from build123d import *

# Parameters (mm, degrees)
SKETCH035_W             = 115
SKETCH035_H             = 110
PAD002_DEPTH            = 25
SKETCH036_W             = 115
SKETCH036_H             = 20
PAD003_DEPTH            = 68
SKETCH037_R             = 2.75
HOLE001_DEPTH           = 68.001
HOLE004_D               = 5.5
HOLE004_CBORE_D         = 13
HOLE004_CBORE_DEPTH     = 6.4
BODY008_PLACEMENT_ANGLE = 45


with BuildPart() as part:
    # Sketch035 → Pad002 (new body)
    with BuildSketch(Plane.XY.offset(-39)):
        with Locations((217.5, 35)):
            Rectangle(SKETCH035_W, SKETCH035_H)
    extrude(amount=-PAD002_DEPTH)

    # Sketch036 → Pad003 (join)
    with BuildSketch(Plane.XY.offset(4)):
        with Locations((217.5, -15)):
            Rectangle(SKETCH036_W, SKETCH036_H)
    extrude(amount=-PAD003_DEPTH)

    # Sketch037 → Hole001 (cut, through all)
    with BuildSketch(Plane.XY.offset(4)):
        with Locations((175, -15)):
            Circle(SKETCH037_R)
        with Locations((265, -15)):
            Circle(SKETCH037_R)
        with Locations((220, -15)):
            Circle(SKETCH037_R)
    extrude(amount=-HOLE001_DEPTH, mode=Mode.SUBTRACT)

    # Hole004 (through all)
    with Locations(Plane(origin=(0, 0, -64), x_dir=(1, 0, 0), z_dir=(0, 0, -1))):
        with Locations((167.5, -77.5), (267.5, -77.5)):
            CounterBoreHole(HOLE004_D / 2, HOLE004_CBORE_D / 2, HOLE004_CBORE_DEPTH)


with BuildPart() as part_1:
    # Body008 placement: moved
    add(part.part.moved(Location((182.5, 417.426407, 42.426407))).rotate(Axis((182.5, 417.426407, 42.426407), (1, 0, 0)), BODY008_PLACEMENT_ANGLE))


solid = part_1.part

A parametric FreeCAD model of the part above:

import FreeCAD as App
import Part
import Sketcher
Q = App.Units.Quantity

doc = App.newDocument("Part")
body = doc.addObject("PartDesign::Body", "Body")

# Sketch on XY plane
sketch1 = body.newObject("Sketcher::SketchObject", "Sketch")
sketch1.AttachmentSupport = (doc.getObject("XY_Plane"), [""])
sketch1.MapMode = "FlatFace"
sketch1.AttachmentOffset = App.Placement(App.Vector(0, 0, -39), App.Rotation())
sketch1.addGeometry(Part.LineSegment(App.Vector(160, 90, 0), App.Vector(160, -20, 0)), False)
sketch1.addGeometry(Part.LineSegment(App.Vector(160, -20, 0), App.Vector(275, -20, 0)), False)
sketch1.addGeometry(Part.LineSegment(App.Vector(275, -20, 0), App.Vector(275, 90, 0)), False)
sketch1.addGeometry(Part.LineSegment(App.Vector(275, 90, 0), App.Vector(160, 90, 0)), False)
sketch1.addConstraint(Sketcher.Constraint("Coincident", 0, 2, 1, 1))
sketch1.addConstraint(Sketcher.Constraint("Coincident", 1, 2, 2, 1))
sketch1.addConstraint(Sketcher.Constraint("Coincident", 2, 2, 3, 1))
sketch1.addConstraint(Sketcher.Constraint("Coincident", 3, 2, 0, 1))
sketch1.addConstraint(Sketcher.Constraint("Vertical", 0))
sketch1.addConstraint(Sketcher.Constraint("Horizontal", 1))
sketch1.addConstraint(Sketcher.Constraint("Vertical", 2))
sketch1.addConstraint(Sketcher.Constraint("Horizontal", 3))
sketch1.addConstraint(Sketcher.Constraint("DistanceX", 1, 1, 1, 2, Q("115 mm")))
sketch1.addConstraint(Sketcher.Constraint("DistanceY", 0, 2, 0, 1, Q("110 mm")))
sketch1.addConstraint(Sketcher.Constraint("DistanceX", -1, 1, 0, 2, Q("160 mm")))
sketch1.addConstraint(Sketcher.Constraint("DistanceY", 0, 2, -1, 1, Q("20 mm")))
pad1 = body.newObject("PartDesign::Pad", "Pad")
pad1.Profile = sketch1
pad1.Length = 25
pad1.Reversed = True

# Sketch on XY plane
sketch2 = body.newObject("Sketcher::SketchObject", "Sketch001")
sketch2.AttachmentSupport = (doc.getObject("XY_Plane"), [""])
sketch2.MapMode = "FlatFace"
sketch2.AttachmentOffset = App.Placement(App.Vector(0, 0, 4), App.Rotation())
sketch2.addGeometry(Part.LineSegment(App.Vector(160, -5, 0), App.Vector(160, -25, 0)), False)
sketch2.addGeometry(Part.LineSegment(App.Vector(160, -25, 0), App.Vector(275, -25, 0)), False)
sketch2.addGeometry(Part.LineSegment(App.Vector(275, -25, 0), App.Vector(275, -5, 0)), False)
sketch2.addGeometry(Part.LineSegment(App.Vector(275, -5, 0), App.Vector(160, -5, 0)), False)
sketch2.addConstraint(Sketcher.Constraint("Coincident", 0, 2, 1, 1))
sketch2.addConstraint(Sketcher.Constraint("Coincident", 1, 2, 2, 1))
sketch2.addConstraint(Sketcher.Constraint("Coincident", 2, 2, 3, 1))
sketch2.addConstraint(Sketcher.Constraint("Coincident", 3, 2, 0, 1))
sketch2.addConstraint(Sketcher.Constraint("Vertical", 0))
sketch2.addConstraint(Sketcher.Constraint("Horizontal", 1))
sketch2.addConstraint(Sketcher.Constraint("Vertical", 2))
sketch2.addConstraint(Sketcher.Constraint("Horizontal", 3))
sketch2.addConstraint(Sketcher.Constraint("DistanceX", 1, 1, 1, 2, Q("115 mm")))
sketch2.addConstraint(Sketcher.Constraint("DistanceY", 0, 2, 0, 1, Q("20 mm")))
sketch2.addConstraint(Sketcher.Constraint("DistanceX", -1, 1, 0, 2, Q("160 mm")))
sketch2.addConstraint(Sketcher.Constraint("DistanceY", 0, 2, -1, 1, Q("25 mm")))
pad2 = body.newObject("PartDesign::Pad", "Pad001")
pad2.Profile = sketch2
pad2.Length = 68
pad2.Reversed = True

# Sketch on XY plane
sketch3 = body.newObject("Sketcher::SketchObject", "Sketch002")
sketch3.AttachmentSupport = (doc.getObject("XY_Plane"), [""])
sketch3.MapMode = "FlatFace"
sketch3.AttachmentOffset = App.Placement(App.Vector(0, 0, 4), App.Rotation())
sketch3.addGeometry(Part.Circle(App.Vector(175, -15, 0), App.Vector(0, 0, 1), 2.75), False)
sketch3.addGeometry(Part.Circle(App.Vector(265, -15, 0), App.Vector(0, 0, 1), 2.75), False)
sketch3.addGeometry(Part.Circle(App.Vector(220, -15, 0), App.Vector(0, 0, 1), 2.75), False)
sketch3.addConstraint(Sketcher.Constraint("Equal", 0, 1))
sketch3.addConstraint(Sketcher.Constraint("Equal", 1, 2))
sketch3.addConstraint(Sketcher.Constraint("Horizontal", 0, 3, 1, 3))
sketch3.addConstraint(Sketcher.Constraint("Horizontal", 1, 3, 2, 3))
sketch3.addConstraint(Sketcher.Constraint("Diameter", 0, Q("5.5 mm")))
sketch3.addConstraint(Sketcher.Constraint("DistanceX", -1, 1, 0, 3, Q("175 mm")))
sketch3.addConstraint(Sketcher.Constraint("DistanceY", 0, 3, -1, 1, Q("15 mm")))
sketch3.addConstraint(Sketcher.Constraint("DistanceX", -1, 1, 1, 3, Q("265 mm")))
sketch3.addConstraint(Sketcher.Constraint("DistanceX", -1, 1, 2, 3, Q("220 mm")))
pocket1 = body.newObject("PartDesign::Pocket", "Pocket")
pocket1.Profile = sketch3
pocket1.Type = "ThroughAll"

# Sketch on XY plane
sketch4 = body.newObject("Sketcher::SketchObject", "Sketch003")
sketch4.AttachmentSupport = (doc.getObject("XY_Plane"), [""])
sketch4.MapMode = "FlatFace"
sketch4.AttachmentOffset = App.Placement(App.Vector(0, 0, -64), App.Rotation())
sketch4.addGeometry(Part.Circle(App.Vector(167.5, 77.5, 0), App.Vector(0, 0, 1), 2.75), False)
sketch4.addGeometry(Part.Circle(App.Vector(267.5, 77.5, 0), App.Vector(0, 0, 1), 2.75), False)
sketch4.addConstraint(Sketcher.Constraint("Equal", 0, 1))
sketch4.addConstraint(Sketcher.Constraint("Horizontal", 0, 3, 1, 3))
sketch4.addConstraint(Sketcher.Constraint("Diameter", 0, Q("5.5 mm")))
sketch4.addConstraint(Sketcher.Constraint("DistanceX", 0, 3, 1, 3, Q("100 mm")))
sketch4.addConstraint(Sketcher.Constraint("DistanceX", -1, 1, 0, 3, Q("167.5 mm")))
sketch4.addConstraint(Sketcher.Constraint("DistanceY", -1, 1, 0, 3, Q("77.5 mm")))
doc.recompute()
hole = body.newObject("PartDesign::Hole", "Hole")
hole.Profile = sketch4
hole.ThreadType = "None"
hole.Diameter = 5.5
hole.DepthType = "ThroughAll"
hole.HoleCutType = "Counterbore"
hole.HoleCutDiameter = 13
hole.HoleCutDepth = 6.4
hole.Reversed = True
body2 = doc.addObject("PartDesign::Body", "Body001")
doc.recompute()

body.Placement = App.Placement(App.Vector(182.5, 417.426407, 42.426407), App.Rotation(App.Vector(1, 0, 0), 45))
boolean = body2.newObject("PartDesign::Boolean", "Boolean")
boolean.Type = "Fuse"
boolean.addObjects([body])

doc.recompute()
